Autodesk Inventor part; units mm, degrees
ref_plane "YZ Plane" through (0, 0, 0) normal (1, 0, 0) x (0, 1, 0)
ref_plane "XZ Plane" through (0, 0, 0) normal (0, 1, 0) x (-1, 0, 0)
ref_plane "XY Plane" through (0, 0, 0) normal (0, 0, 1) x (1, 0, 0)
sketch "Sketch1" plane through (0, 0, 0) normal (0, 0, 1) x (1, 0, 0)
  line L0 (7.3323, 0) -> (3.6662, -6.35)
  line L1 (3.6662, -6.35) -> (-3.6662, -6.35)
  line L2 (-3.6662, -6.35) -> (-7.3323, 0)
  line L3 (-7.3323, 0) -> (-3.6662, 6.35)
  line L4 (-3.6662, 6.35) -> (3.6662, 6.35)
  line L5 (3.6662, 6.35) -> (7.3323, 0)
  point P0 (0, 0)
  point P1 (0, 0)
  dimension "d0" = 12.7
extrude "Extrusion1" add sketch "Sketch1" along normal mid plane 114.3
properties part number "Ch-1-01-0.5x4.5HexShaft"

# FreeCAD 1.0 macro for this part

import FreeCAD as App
import Part
import Sketcher
from FreeCAD import Vector
Q = App.Units.Quantity


def add_polygon(sketch, points):
    """Adds a closed chain of lines whose ends are joined by coincident constraints."""
    first, n = sketch.GeometryCount, len(points)
    for a, b in zip(points, points[1:] + points[:1]):
        sketch.addGeometry(Part.LineSegment(App.Vector(*a, 0), App.Vector(*b, 0)), False)
    for i in range(n):
        sketch.addConstraint(Sketcher.Constraint("Coincident", first + i, 2, first + (i + 1) % n, 1))

doc = App.newDocument("Part")
body = doc.addObject("PartDesign::Body", "Body")

sketch1 = body.newObject("Sketcher::SketchObject", "Sketch")
sketch1.AttachmentSupport = (doc.getObject("XY_Plane"), [""])
sketch1.MapMode = "FlatFace"
add_polygon(sketch1, [(3.6662, -6.35), (7.3323, 0), (3.6662, 6.35), (-3.6662, 6.35), (-7.3323, 0), (-3.6662, -6.35)])
sketch1.addConstraint([
    Sketcher.Constraint("Horizontal", 2),
    Sketcher.Constraint("Horizontal", 5),
    Sketcher.Constraint("Symmetric", 0, 2, 3, 2, -1, 1),
    Sketcher.Constraint("Symmetric", 1, 2, 4, 2, -1, 1),
    Sketcher.Constraint("PointOnObject", 0, 2, -1),
    Sketcher.Constraint("Parallel", 0, 3),
    Sketcher.Constraint("Vertical", 2, 2, 4, 2),
    Sketcher.Constraint("DistanceY", 4, 2, 2, 2, Q("0.5 in")),
    Sketcher.Constraint("Angle", 0, Q("60.0005 deg")),
    Sketcher.Constraint("DistanceX", 2, 2, 0, 2, Q("0.433 in")),
])
pad1 = body.newObject("PartDesign::Pad", "Pad")
pad1.Profile = sketch1
pad1.Length = Q("4.5 in")
pad1.Midplane = True

doc.recompute()
